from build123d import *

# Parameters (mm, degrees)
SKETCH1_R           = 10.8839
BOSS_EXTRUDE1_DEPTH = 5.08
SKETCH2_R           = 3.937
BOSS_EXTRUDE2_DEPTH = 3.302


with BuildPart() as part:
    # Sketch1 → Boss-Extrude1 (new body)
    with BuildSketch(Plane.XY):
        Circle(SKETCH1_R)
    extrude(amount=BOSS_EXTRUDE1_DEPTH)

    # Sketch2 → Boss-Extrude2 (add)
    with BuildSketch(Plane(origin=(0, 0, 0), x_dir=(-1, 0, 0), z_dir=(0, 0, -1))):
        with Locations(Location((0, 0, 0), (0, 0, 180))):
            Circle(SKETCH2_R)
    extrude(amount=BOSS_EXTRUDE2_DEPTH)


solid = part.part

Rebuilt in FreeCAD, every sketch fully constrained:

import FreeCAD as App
import Part
import Sketcher

V = App.Vector
Q = App.Units.Quantity

doc = App.newDocument("Part")
params = doc.addObject("Spreadsheet::Sheet", "Params")
for row, (alias, value) in enumerate([
    ("sketch1_diameter", "0.857 in"),
    ("pad1_length", "0.2 in"),
    ("sketch2_diameter", "0.31 in"),
    ("pad2_length", "0.13 in"),
], start=1):
    params.set(f"A{row}", alias)
    params.set(f"B{row}", "=" + value)
    params.setAlias(f"B{row}", alias)

body = doc.addObject("PartDesign::Body", "Body")

# Sketch on XY plane
sketch1 = body.newObject("Sketcher::SketchObject", "Sketch")
sketch1.AttachmentSupport = (doc.getObject("XY_Plane"), [""])
sketch1.MapMode = "FlatFace"
sketch1.addGeometry(Part.Circle(V(0, 0, 0), V(0, 0, 1), 10.8839), False)
sketch1.addConstraint([
    Sketcher.Constraint("Coincident", 0, 3, -1, 1),
    Sketcher.Constraint("Diameter", 0, Q("0.857 in")),
])
sketch1.setExpression("Constraints[1]", "Params.sketch1_diameter")
pad1 = body.newObject("PartDesign::Pad", "Pad")
pad1.Profile = sketch1
pad1.setExpression("Length", "Params.pad1_length")

# Sketch on XY plane
sketch2 = body.newObject("Sketcher::SketchObject", "Sketch001")
sketch2.AttachmentSupport = (doc.getObject("XY_Plane"), [""])
sketch2.MapMode = "FlatFace"
sketch2.addGeometry(Part.Circle(V(0, 0, 0), V(0, 0, 1), 3.937), False)
sketch2.addConstraint([
    Sketcher.Constraint("Coincident", 0, 3, -1, 1),
    Sketcher.Constraint("Diameter", 0, Q("0.31 in")),
])
sketch2.setExpression("Constraints[1]", "Params.sketch2_diameter")
pad2 = body.newObject("PartDesign::Pad", "Pad001")
pad2.Profile = sketch2
pad2.setExpression("Length", "Params.pad2_length")
pad2.Reversed = True

doc.recompute()
